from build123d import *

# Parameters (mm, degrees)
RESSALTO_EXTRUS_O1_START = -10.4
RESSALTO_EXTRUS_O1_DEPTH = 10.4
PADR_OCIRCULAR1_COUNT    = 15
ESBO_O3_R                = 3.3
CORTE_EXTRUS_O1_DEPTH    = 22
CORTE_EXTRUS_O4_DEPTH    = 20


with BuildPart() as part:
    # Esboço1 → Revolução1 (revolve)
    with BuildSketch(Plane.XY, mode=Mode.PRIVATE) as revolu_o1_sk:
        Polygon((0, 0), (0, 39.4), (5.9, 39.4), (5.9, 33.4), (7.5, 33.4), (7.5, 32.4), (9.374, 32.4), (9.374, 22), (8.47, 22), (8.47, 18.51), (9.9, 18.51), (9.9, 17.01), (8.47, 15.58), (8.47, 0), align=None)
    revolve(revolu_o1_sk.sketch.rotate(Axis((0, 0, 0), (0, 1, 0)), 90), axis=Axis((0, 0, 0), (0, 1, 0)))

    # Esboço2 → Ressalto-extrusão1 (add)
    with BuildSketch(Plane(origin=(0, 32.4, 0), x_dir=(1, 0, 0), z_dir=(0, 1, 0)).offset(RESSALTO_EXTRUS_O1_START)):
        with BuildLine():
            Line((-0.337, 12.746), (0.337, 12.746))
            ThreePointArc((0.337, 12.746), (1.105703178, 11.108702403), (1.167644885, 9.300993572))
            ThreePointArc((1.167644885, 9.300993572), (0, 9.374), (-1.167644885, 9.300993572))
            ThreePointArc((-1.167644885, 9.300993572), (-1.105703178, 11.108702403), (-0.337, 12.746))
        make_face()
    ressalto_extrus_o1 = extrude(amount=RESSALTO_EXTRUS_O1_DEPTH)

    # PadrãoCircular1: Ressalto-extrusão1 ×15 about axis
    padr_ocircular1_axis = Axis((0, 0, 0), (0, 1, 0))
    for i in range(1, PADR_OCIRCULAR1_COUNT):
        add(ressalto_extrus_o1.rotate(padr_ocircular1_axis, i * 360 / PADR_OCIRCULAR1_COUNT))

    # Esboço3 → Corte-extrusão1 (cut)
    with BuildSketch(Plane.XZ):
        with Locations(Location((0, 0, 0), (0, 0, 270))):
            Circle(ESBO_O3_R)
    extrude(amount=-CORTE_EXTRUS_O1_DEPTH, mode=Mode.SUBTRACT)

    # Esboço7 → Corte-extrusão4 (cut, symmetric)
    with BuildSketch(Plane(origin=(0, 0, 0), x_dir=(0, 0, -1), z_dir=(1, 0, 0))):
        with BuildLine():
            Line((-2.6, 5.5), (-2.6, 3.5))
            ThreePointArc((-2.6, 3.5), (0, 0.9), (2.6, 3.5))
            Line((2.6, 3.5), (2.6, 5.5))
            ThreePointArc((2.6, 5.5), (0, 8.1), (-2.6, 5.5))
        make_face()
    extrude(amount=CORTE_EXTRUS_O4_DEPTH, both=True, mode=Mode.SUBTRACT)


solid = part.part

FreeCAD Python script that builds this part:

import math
import FreeCAD as App
import Part
import Sketcher

V = App.Vector
Q = App.Units.Quantity

doc = App.newDocument("Part")
body = doc.addObject("PartDesign::Body", "Body")

sketch1 = body.newObject("Sketcher::SketchObject", "Sketch")
sketch1.AttachmentSupport = (doc.getObject("XY_Plane"), [""])
sketch1.MapMode = "FlatFace"
sketch1.addGeometry([
    Part.LineSegment(V(0, 39.4, 0), V(0, 0, 0)),
    Part.LineSegment(V(0, 0, 0), V(8.5, 0, 0)),
    Part.LineSegment(V(8.5, 0, 0), V(8.5, 15.6, 0)),
    Part.LineSegment(V(8.5, 15.6, 0), V(9.9, 17, 0)),
    Part.LineSegment(V(9.9, 17, 0), V(9.9, 18.5, 0)),
    Part.LineSegment(V(9.9, 18.5, 0), V(8.5, 18.5, 0)),
    Part.LineSegment(V(8.5, 18.5, 0), V(8.5, 22, 0)),
    Part.LineSegment(V(8.5, 22, 0), V(9.4, 22, 0)),
    Part.LineSegment(V(9.4, 22, 0), V(9.4, 32.4, 0)),
    Part.LineSegment(V(9.4, 32.4, 0), V(7.5, 32.4, 0)),
    Part.LineSegment(V(7.5, 32.4, 0), V(7.5, 33.4, 0)),
    Part.LineSegment(V(7.5, 33.4, 0), V(5.9, 33.4, 0)),
    Part.LineSegment(V(5.9, 33.4, 0), V(5.9, 39.4, 0)),
    Part.LineSegment(V(5.9, 39.4, 0), V(0, 39.4, 0)),
], False)
sketch1.addConstraint([
    Sketcher.Constraint("Coincident", 0, 2, 1, 1),
    Sketcher.Constraint("Coincident", 1, 2, 2, 1),
    Sketcher.Constraint("Coincident", 2, 2, 3, 1),
    Sketcher.Constraint("Coincident", 3, 2, 4, 1),
    Sketcher.Constraint("Coincident", 4, 2, 5, 1),
    Sketcher.Constraint("Coincident", 5, 2, 6, 1),
    Sketcher.Constraint("Coincident", 6, 2, 7, 1),
    Sketcher.Constraint("Coincident", 7, 2, 8, 1),
    Sketcher.Constraint("Coincident", 8, 2, 9, 1),
    Sketcher.Constraint("Coincident", 9, 2, 10, 1),
    Sketcher.Constraint("Coincident", 10, 2, 11, 1),
    Sketcher.Constraint("Coincident", 11, 2, 12, 1),
    Sketcher.Constraint("Coincident", 12, 2, 13, 1),
    Sketcher.Constraint("Coincident", 13, 2, 0, 1),
    Sketcher.Constraint("Vertical", 0),
    Sketcher.Constraint("Horizontal", 1),
    Sketcher.Constraint("Vertical", 2),
    Sketcher.Constraint("Vertical", 4),
    Sketcher.Constraint("Horizontal", 5),
    Sketcher.Constraint("Vertical", 6),
    Sketcher.Constraint("Horizontal", 7),
    Sketcher.Constraint("Vertical", 8),
    Sketcher.Constraint("Horizontal", 9),
    Sketcher.Constraint("Vertical", 10),
    Sketcher.Constraint("Horizontal", 11),
    Sketcher.Constraint("Vertical", 12),
    Sketcher.Constraint("Horizontal", 13),
    Sketcher.Constraint("Coincident", 0, 2, -1, 1),
    Sketcher.Constraint("Vertical", 2, 2, 5, 2),
    Sketcher.Constraint("DistanceY", 10, 1, 10, 2, Q("1 mm")),
    Sketcher.Constraint("DistanceY", 12, 1, 12, 2, Q("6 mm")),
    Sketcher.Constraint("Angle", 3, Q("45 deg")),
    Sketcher.Constraint("DistanceX", 11, 2, 11, 1, Q("1.6 mm")),
    Sketcher.Constraint("DistanceX", 13, 2, 13, 1, Q("5.9 mm")),
    Sketcher.Constraint("DistanceY", 0, 2, 0, 1, Q("39.4 mm")),
    Sketcher.Constraint("DistanceY", 4, 1, 4, 2, Q("1.5 mm")),
    Sketcher.Constraint("DistanceY", 8, 1, 8, 2, Q("10.4 mm")),
    Sketcher.Constraint("DistanceX", 1, 1, 1, 2, Q("8.47 mm")),
    Sketcher.Constraint("DistanceX", 5, 2, 5, 1, Q("1.43 mm")),
    Sketcher.Constraint("DistanceY", 2, 1, 2, 2, Q("15.58 mm")),
    Sketcher.Constraint("DistanceX", 7, 1, 7, 2, Q("0.904 mm")),
])
revolution = body.newObject("PartDesign::Revolution", "Revolution")
revolution.Profile = sketch1
revolution.ReferenceAxis = (sketch1, ["V_Axis"])
revolution.Angle = 360

sketch2 = body.newObject("Sketcher::SketchObject", "Sketch001")
sketch2.AttachmentSupport = (doc.getObject("XZ_Plane"), [""])
sketch2.MapMode = "FlatFace"
sketch2.AttachmentOffset = App.Placement(V(0, 0, -22), App.Rotation())
sketch2.addGeometry([
    Part.LineSegment(V(0.3, -12.7, 0), V(-0.3, -12.7, 0)),
    Part.ArcOfCircle(Part.Circle(V(3.3, -10.1, 0), V(0, 0, 1), 4.5), math.radians(170), math.radians(217)),
    Part.ArcOfCircle(Part.Circle(V(0, 0, 0), V(0, 0, 1), 9.4), math.radians(-97.16), math.radians(-82.84)),
    Part.ArcOfCircle(Part.Circle(V(-3.3, -10.1, 0), V(0, 0, 1), 4.5), math.radians(-37), math.radians(10)),
], False)
sketch2.addConstraint([
    Sketcher.Constraint("Coincident", 0, 2, 1, 2),
    Sketcher.Constraint("Coincident", 1, 1, 2, 1),
    Sketcher.Constraint("Coincident", 2, 2, 3, 2),
    Sketcher.Constraint("Coincident", 3, 1, 0, 1),
    Sketcher.Constraint("Horizontal", 0),
    Sketcher.Constraint("Coincident", 2, 3, -1, 1),
    Sketcher.Constraint("Equal", 1, 3),
    Sketcher.Constraint("Symmetric", 1, 3, 3, 3, -2),
    Sketcher.Constraint("Radius", 2, Q("9.374 mm")),
    Sketcher.Constraint("DistanceX", 0, 2, 0, 1, Q("0.674 mm")),
    Sketcher.Constraint("DistanceY", 0, 2, -1, 1, Q("12.746 mm")),
    Sketcher.Constraint("Radius", 1, Q("4.500107 mm")),
    Sketcher.Constraint("DistanceX", 3, 3, 1, 1, Q("2.101389 mm")),
])
pad1 = body.newObject("PartDesign::Pad", "Pad")
pad1.Profile = sketch2
pad1.Length = 10.4
pad1.Reversed = True
doc.recompute()

polarpattern = body.newObject("PartDesign::PolarPattern", "PolarPattern")
polarpattern.Originals = [pad1]
polarpattern.Axis = (doc.getObject("Y_Axis"), [""])
polarpattern.Angle = 360
polarpattern.Occurrences = 15
body.Tip = polarpattern

sketch3 = body.newObject("Sketcher::SketchObject", "Sketch002")
sketch3.AttachmentSupport = (doc.getObject("XZ_Plane"), [""])
sketch3.MapMode = "FlatFace"
sketch3.addGeometry(Part.Circle(V(0, 0, 0), V(0, 0, 1), 3.3), False)
sketch3.addConstraint([
    Sketcher.Constraint("Coincident", 0, 3, -1, 1),
    Sketcher.Constraint("Diameter", 0, Q("6.6 mm")),
])
pocket1 = body.newObject("PartDesign::Pocket", "Pocket")
pocket1.Profile = sketch3
pocket1.Length = 22

sketch4 = body.newObject("Sketcher::SketchObject", "Sketch003")
sketch4.AttachmentSupport = (doc.getObject("YZ_Plane"), [""])
sketch4.MapMode = "FlatFace"
sketch4.addGeometry([
    Part.LineSegment(V(5.5, 2.6, 0), V(3.5, 2.6, 0)),
    Part.ArcOfCircle(Part.Circle(V(3.5, 0, 0), V(0, 0, 1), 2.6), math.radians(90), math.radians(270)),
    Part.LineSegment(V(3.5, -2.6, 0), V(5.5, -2.6, 0)),
    Part.ArcOfCircle(Part.Circle(V(5.5, 0, 0), V(0, 0, 1), 2.6), math.radians(-90), math.radians(90)),
], False)
sketch4.addConstraint([
    Sketcher.Constraint("Tangent", 0, 2, 1, 1),
    Sketcher.Constraint("Tangent", 1, 2, 2, 1),
    Sketcher.Constraint("Tangent", 2, 2, 3, 1),
    Sketcher.Constraint("Tangent", 3, 2, 0, 1),
    Sketcher.Constraint("Horizontal", 0),
    Sketcher.Constraint("Horizontal", 2),
    Sketcher.Constraint("PointOnObject", 1, 3, -1),
    Sketcher.Constraint("Radius", 1, Q("2.6 mm")),
    Sketcher.Constraint("DistanceX", 0, 2, 0, 1, Q("2 mm")),
    Sketcher.Constraint("DistanceX", -1, 1, 1, 3, Q("3.5 mm")),
])
pocket2 = body.newObject("PartDesign::Pocket", "Pocket001")
pocket2.Profile = sketch4
pocket2.Length = 40
pocket2.Midplane = True

doc.recompute()
